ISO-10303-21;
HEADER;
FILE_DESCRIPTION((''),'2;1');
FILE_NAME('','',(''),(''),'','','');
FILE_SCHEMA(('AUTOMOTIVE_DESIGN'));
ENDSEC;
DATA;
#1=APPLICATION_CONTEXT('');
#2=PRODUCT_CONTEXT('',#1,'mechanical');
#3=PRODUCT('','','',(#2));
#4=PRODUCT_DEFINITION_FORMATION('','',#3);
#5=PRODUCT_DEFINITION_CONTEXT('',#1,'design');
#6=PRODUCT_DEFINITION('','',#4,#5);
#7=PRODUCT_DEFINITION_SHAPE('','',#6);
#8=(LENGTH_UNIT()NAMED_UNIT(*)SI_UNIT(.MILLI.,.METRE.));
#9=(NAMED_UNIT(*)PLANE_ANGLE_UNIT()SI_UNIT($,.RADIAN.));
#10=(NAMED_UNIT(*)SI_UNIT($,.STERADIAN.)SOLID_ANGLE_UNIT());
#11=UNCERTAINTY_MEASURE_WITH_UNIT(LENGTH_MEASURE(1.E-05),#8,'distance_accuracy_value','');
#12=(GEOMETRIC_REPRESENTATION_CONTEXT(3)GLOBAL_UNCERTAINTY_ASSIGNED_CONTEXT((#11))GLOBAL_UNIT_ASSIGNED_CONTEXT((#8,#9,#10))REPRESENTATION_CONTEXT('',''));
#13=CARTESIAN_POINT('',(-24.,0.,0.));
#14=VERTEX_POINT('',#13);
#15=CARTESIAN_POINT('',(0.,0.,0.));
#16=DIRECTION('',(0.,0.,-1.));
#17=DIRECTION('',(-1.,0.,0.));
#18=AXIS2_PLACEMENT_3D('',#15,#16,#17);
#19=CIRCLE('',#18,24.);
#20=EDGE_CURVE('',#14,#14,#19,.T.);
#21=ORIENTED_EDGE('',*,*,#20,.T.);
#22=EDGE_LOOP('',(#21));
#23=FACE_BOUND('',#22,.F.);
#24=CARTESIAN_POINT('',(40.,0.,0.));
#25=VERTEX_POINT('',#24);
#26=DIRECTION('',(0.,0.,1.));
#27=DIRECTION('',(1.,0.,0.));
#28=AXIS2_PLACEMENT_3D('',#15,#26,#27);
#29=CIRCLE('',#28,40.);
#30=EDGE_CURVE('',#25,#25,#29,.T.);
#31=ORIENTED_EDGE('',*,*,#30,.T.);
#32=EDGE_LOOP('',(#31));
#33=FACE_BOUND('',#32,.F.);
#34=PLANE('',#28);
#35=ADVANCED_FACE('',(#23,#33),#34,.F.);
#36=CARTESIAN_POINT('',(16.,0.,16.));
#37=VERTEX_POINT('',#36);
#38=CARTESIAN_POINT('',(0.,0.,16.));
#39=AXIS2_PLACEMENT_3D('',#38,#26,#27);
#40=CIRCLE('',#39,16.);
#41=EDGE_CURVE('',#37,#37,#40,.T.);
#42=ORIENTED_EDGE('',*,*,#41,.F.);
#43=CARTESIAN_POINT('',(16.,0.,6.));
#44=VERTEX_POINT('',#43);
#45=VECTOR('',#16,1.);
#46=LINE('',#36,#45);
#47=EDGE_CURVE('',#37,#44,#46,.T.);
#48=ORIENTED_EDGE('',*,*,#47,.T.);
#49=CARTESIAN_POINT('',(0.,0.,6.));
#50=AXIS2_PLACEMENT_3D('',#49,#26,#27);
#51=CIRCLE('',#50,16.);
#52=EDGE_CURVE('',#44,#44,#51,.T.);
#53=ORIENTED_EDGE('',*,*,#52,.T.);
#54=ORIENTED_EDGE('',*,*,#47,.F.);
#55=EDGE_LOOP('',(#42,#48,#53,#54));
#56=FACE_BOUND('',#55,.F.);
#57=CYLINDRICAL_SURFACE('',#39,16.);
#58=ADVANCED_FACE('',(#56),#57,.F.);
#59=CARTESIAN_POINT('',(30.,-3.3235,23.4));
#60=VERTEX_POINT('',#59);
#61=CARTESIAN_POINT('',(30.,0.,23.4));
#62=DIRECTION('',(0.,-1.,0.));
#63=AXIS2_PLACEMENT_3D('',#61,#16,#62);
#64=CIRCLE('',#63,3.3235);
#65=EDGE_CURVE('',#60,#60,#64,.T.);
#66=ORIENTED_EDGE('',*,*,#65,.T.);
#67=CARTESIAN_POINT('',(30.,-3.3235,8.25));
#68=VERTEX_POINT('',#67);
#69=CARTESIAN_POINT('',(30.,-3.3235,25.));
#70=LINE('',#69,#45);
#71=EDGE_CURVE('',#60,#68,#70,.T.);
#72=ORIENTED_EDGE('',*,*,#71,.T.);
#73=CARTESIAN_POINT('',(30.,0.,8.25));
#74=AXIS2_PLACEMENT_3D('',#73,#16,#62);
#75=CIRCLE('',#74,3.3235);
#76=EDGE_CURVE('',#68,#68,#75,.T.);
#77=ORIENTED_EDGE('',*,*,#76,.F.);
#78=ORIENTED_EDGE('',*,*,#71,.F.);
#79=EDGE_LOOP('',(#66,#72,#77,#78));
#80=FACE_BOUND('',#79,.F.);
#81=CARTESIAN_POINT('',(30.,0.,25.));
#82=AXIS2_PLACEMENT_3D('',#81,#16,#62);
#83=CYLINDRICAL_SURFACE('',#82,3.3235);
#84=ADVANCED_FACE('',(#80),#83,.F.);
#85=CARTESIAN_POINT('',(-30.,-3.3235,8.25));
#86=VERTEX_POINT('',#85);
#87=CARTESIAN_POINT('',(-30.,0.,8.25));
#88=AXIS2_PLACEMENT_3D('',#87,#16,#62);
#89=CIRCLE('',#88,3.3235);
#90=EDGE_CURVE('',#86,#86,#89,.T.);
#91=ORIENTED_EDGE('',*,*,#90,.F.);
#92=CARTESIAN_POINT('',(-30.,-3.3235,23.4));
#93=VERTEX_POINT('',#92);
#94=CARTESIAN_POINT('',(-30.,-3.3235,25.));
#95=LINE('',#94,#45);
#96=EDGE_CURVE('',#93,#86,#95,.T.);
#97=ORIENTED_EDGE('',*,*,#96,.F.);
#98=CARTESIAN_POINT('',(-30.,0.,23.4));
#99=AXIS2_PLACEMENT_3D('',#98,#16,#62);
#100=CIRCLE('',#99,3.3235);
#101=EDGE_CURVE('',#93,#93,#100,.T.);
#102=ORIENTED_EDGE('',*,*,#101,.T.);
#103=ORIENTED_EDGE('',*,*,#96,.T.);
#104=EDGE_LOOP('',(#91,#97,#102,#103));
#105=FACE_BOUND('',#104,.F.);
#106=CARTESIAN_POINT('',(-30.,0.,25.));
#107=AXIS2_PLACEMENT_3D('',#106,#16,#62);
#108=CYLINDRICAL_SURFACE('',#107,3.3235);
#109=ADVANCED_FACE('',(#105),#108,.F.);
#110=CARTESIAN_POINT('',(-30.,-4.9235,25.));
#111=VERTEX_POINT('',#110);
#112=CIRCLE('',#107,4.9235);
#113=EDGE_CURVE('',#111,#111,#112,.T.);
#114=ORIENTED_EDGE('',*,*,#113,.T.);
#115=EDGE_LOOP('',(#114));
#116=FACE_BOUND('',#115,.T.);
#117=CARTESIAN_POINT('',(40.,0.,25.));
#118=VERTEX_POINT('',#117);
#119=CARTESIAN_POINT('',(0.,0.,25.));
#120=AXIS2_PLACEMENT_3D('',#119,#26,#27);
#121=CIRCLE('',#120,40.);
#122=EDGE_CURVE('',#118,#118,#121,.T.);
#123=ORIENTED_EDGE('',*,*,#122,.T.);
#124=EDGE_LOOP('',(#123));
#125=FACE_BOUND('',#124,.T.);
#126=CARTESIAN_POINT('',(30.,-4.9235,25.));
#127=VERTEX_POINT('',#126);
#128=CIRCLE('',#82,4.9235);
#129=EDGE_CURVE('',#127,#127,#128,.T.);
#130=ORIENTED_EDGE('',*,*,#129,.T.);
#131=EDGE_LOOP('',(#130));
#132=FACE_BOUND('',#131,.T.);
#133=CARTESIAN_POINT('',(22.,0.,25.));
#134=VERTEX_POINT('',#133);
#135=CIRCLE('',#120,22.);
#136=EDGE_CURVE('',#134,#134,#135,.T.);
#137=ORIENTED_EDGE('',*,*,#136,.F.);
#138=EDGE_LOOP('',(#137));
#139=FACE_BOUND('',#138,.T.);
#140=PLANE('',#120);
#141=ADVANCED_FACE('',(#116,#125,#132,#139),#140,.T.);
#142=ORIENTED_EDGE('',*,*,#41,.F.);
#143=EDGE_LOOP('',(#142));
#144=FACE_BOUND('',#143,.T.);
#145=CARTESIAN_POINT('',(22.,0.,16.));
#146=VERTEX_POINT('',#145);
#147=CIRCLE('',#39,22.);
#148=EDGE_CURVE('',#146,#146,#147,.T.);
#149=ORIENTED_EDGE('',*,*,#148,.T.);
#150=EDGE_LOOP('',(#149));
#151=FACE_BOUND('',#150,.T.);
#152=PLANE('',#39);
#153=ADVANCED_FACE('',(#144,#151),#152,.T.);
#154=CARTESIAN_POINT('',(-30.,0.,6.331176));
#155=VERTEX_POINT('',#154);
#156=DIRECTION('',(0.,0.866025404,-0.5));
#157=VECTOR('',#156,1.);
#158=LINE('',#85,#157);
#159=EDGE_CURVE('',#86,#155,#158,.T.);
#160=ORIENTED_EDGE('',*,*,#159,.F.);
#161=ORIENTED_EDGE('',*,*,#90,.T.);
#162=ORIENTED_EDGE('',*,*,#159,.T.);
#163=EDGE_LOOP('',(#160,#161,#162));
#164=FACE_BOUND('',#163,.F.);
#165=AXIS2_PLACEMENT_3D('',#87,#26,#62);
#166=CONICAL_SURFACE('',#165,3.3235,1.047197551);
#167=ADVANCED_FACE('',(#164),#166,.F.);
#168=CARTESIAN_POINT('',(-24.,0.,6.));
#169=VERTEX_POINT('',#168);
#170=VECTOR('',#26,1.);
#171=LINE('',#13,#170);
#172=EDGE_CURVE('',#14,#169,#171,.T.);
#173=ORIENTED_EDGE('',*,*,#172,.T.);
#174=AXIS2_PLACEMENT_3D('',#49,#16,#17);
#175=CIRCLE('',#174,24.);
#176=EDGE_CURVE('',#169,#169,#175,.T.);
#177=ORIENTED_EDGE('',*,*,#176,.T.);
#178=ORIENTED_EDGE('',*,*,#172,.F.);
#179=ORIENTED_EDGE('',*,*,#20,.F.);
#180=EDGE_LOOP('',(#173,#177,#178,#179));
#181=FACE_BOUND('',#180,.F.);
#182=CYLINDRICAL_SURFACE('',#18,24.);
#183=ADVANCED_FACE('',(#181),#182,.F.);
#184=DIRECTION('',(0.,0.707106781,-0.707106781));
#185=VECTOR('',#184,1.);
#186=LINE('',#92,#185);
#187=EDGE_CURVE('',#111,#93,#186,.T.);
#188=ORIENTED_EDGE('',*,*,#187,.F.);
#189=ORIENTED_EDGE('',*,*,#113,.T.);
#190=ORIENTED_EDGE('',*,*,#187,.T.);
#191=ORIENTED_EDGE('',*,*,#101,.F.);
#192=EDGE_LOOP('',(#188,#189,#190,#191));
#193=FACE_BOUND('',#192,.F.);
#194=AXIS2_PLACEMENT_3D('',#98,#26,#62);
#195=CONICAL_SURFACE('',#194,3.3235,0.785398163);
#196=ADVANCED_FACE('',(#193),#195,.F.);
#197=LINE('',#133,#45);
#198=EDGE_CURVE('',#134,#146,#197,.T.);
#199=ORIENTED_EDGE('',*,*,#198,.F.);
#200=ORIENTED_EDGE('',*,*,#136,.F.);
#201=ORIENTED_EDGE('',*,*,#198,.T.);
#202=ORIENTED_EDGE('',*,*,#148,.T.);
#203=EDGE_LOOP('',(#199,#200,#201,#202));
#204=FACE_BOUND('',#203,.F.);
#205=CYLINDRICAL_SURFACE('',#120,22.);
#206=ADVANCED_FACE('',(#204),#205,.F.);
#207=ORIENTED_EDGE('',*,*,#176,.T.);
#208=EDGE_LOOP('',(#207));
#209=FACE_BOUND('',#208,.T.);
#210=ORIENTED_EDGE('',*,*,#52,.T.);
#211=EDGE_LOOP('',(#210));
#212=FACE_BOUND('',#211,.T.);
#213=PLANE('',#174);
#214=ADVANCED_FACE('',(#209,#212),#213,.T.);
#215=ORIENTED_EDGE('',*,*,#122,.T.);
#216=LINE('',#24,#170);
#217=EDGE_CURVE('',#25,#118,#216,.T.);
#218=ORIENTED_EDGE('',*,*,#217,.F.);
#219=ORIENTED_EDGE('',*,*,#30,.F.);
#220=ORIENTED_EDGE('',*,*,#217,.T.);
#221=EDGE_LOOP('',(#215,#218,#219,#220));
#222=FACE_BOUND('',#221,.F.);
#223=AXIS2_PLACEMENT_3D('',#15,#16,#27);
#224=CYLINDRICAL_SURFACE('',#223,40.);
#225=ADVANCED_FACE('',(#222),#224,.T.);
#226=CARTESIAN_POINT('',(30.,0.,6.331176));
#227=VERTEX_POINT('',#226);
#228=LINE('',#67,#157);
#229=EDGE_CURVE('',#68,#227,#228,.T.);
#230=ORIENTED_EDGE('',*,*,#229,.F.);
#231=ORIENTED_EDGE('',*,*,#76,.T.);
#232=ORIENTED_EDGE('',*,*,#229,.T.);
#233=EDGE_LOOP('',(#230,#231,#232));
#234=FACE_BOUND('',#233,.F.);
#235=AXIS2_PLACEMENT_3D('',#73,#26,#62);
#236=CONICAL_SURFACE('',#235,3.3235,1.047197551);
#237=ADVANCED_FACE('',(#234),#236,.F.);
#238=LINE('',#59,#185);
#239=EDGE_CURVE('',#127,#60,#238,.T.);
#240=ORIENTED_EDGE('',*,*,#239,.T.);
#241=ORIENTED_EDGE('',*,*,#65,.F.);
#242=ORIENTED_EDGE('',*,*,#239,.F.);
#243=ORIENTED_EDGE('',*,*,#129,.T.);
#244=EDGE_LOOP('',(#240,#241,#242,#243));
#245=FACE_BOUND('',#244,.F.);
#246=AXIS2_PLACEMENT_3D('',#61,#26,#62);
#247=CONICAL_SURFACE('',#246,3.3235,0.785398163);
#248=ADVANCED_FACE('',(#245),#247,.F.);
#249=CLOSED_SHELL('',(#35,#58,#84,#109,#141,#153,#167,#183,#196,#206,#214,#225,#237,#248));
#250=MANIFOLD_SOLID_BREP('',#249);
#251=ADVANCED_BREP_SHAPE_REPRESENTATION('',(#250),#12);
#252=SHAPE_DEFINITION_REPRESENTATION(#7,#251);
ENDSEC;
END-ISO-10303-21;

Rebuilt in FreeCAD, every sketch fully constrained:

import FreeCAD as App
import Part
import Sketcher
from FreeCAD import Vector
Q = App.Units.Quantity


def edges_at(feature, points):
    """Names of the edges that pass closest to the given points."""
    edges = feature.Shape.Edges
    near = lambda p: min(range(len(edges)), key=lambda i: edges[i].distToShape(Part.Vertex(*p))[0])
    return sorted({f"Edge{near(p) + 1}" for p in points})

doc = App.newDocument("Part")
params = doc.addObject("Spreadsheet::Sheet", "Params")
for row, (alias, value) in enumerate([
    ("sketch1_diameter", "80 mm"),
    ("pad1_length", "25 mm"),
    ("hole_diameter", "6.647 mm"),
    ("hole_depth", "16.75 mm"),
    ("chamfer_size", "1.6 mm"),
    ("sketch3_diameter", "44 mm"),
    ("pocket1_length", "9 mm"),
    ("sketch4_diameter", "32 mm"),
    ("sketch5_diameter", "48 mm"),
    ("pocket3_length", "6 mm"),
], start=1):
    params.set(f"A{row}", alias)
    params.set(f"B{row}", "=" + value)
    params.setAlias(f"B{row}", alias)

body = doc.addObject("PartDesign::Body", "Body")

sketch1 = body.newObject("Sketcher::SketchObject", "Sketch")
sketch1.AttachmentSupport = (doc.getObject("XY_Plane"), [""])
sketch1.MapMode = "FlatFace"
sketch1.addGeometry(Part.Circle(Vector(0, 0, 0), Vector(0, 0, 1), 40), False)
sketch1.addConstraint([
    Sketcher.Constraint("Coincident", 0, 3, -1, 1),
    Sketcher.Constraint("Diameter", 0, Q("80 mm")),
])
sketch1.setExpression("Constraints[1]", "Params.sketch1_diameter")
pad1 = body.newObject("PartDesign::Pad", "Pad")
pad1.Profile = sketch1
pad1.setExpression("Length", "Params.pad1_length")

sketch2 = body.newObject("Sketcher::SketchObject", "Sketch001")
sketch2.AttachmentSupport = (doc.getObject("XY_Plane"), [""])
sketch2.MapMode = "FlatFace"
sketch2.AttachmentOffset = App.Placement(Vector(0, 0, 25), App.Rotation())
sketch2.addGeometry([
    Part.Circle(Vector(-30, 0, 0), Vector(0, 0, 1), 3.3),
    Part.Circle(Vector(30, 0, 0), Vector(0, 0, 1), 3.3),
], False)
sketch2.addConstraint([
    Sketcher.Constraint("Equal", 0, 1),
    Sketcher.Constraint("Symmetric", 0, 3, 1, 3, -1, 1),
    Sketcher.Constraint("PointOnObject", 0, 3, -1),
    Sketcher.Constraint("Diameter", 0, Q("6.647 mm")),
    Sketcher.Constraint("DistanceX", 0, 3, -1, 1, Q("30 mm")),
])
doc.recompute()
hole = body.newObject("PartDesign::Hole", "Hole")
hole.Profile = sketch2
hole.ThreadType = "None"
hole.setExpression("Diameter", "Params.hole_diameter")
hole.DepthType = "Dimension"
hole.setExpression("Depth", "Params.hole_depth")
hole.DrillPoint = "Angled"
hole.DrillPointAngle = 120
doc.recompute()

chamfer = body.newObject("PartDesign::Chamfer", "Chamfer")
chamfer.Base = (hole, edges_at(hole, [(-30, 3.324, 25), (30, 3.324, 25)]))
chamfer.setExpression("Size", "Params.chamfer_size")

sketch3 = body.newObject("Sketcher::SketchObject", "Sketch002")
sketch3.AttachmentSupport = (doc.getObject("XY_Plane"), [""])
sketch3.MapMode = "FlatFace"
sketch3.AttachmentOffset = App.Placement(Vector(0, 0, 25), App.Rotation())
sketch3.addGeometry(Part.Circle(Vector(0, 0, 0), Vector(0, 0, 1), 22), False)
sketch3.addConstraint([
    Sketcher.Constraint("Coincident", 0, 3, -1, 1),
    Sketcher.Constraint("Diameter", 0, Q("44 mm")),
])
sketch3.setExpression("Constraints[1]", "Params.sketch3_diameter")
pocket1 = body.newObject("PartDesign::Pocket", "Pocket")
pocket1.Profile = sketch3
pocket1.setExpression("Length", "Params.pocket1_length")

sketch4 = body.newObject("Sketcher::SketchObject", "Sketch003")
sketch4.AttachmentSupport = (doc.getObject("XY_Plane"), [""])
sketch4.MapMode = "FlatFace"
sketch4.AttachmentOffset = App.Placement(Vector(0, 0, 16), App.Rotation())
sketch4.addGeometry(Part.Circle(Vector(0, 0, 0), Vector(0, 0, 1), 16), False)
sketch4.addConstraint([
    Sketcher.Constraint("Coincident", 0, 3, -1, 1),
    Sketcher.Constraint("Diameter", 0, Q("32 mm")),
])
sketch4.setExpression("Constraints[1]", "Params.sketch4_diameter")
pocket2 = body.newObject("PartDesign::Pocket", "Pocket001")
pocket2.Profile = sketch4
pocket2.Type = "ThroughAll"

sketch5 = body.newObject("Sketcher::SketchObject", "Sketch004")
sketch5.AttachmentSupport = (doc.getObject("XY_Plane"), [""])
sketch5.MapMode = "FlatFace"
sketch5.addGeometry(Part.Circle(Vector(0, 0, 0), Vector(0, 0, 1), 24), False)
sketch5.addConstraint([
    Sketcher.Constraint("Coincident", 0, 3, -1, 1),
    Sketcher.Constraint("Diameter", 0, Q("48 mm")),
])
sketch5.setExpression("Constraints[1]", "Params.sketch5_diameter")
pocket3 = body.newObject("PartDesign::Pocket", "Pocket002")
pocket3.Profile = sketch5
pocket3.setExpression("Length", "Params.pocket3_length")
pocket3.Reversed = True

doc.recompute()
